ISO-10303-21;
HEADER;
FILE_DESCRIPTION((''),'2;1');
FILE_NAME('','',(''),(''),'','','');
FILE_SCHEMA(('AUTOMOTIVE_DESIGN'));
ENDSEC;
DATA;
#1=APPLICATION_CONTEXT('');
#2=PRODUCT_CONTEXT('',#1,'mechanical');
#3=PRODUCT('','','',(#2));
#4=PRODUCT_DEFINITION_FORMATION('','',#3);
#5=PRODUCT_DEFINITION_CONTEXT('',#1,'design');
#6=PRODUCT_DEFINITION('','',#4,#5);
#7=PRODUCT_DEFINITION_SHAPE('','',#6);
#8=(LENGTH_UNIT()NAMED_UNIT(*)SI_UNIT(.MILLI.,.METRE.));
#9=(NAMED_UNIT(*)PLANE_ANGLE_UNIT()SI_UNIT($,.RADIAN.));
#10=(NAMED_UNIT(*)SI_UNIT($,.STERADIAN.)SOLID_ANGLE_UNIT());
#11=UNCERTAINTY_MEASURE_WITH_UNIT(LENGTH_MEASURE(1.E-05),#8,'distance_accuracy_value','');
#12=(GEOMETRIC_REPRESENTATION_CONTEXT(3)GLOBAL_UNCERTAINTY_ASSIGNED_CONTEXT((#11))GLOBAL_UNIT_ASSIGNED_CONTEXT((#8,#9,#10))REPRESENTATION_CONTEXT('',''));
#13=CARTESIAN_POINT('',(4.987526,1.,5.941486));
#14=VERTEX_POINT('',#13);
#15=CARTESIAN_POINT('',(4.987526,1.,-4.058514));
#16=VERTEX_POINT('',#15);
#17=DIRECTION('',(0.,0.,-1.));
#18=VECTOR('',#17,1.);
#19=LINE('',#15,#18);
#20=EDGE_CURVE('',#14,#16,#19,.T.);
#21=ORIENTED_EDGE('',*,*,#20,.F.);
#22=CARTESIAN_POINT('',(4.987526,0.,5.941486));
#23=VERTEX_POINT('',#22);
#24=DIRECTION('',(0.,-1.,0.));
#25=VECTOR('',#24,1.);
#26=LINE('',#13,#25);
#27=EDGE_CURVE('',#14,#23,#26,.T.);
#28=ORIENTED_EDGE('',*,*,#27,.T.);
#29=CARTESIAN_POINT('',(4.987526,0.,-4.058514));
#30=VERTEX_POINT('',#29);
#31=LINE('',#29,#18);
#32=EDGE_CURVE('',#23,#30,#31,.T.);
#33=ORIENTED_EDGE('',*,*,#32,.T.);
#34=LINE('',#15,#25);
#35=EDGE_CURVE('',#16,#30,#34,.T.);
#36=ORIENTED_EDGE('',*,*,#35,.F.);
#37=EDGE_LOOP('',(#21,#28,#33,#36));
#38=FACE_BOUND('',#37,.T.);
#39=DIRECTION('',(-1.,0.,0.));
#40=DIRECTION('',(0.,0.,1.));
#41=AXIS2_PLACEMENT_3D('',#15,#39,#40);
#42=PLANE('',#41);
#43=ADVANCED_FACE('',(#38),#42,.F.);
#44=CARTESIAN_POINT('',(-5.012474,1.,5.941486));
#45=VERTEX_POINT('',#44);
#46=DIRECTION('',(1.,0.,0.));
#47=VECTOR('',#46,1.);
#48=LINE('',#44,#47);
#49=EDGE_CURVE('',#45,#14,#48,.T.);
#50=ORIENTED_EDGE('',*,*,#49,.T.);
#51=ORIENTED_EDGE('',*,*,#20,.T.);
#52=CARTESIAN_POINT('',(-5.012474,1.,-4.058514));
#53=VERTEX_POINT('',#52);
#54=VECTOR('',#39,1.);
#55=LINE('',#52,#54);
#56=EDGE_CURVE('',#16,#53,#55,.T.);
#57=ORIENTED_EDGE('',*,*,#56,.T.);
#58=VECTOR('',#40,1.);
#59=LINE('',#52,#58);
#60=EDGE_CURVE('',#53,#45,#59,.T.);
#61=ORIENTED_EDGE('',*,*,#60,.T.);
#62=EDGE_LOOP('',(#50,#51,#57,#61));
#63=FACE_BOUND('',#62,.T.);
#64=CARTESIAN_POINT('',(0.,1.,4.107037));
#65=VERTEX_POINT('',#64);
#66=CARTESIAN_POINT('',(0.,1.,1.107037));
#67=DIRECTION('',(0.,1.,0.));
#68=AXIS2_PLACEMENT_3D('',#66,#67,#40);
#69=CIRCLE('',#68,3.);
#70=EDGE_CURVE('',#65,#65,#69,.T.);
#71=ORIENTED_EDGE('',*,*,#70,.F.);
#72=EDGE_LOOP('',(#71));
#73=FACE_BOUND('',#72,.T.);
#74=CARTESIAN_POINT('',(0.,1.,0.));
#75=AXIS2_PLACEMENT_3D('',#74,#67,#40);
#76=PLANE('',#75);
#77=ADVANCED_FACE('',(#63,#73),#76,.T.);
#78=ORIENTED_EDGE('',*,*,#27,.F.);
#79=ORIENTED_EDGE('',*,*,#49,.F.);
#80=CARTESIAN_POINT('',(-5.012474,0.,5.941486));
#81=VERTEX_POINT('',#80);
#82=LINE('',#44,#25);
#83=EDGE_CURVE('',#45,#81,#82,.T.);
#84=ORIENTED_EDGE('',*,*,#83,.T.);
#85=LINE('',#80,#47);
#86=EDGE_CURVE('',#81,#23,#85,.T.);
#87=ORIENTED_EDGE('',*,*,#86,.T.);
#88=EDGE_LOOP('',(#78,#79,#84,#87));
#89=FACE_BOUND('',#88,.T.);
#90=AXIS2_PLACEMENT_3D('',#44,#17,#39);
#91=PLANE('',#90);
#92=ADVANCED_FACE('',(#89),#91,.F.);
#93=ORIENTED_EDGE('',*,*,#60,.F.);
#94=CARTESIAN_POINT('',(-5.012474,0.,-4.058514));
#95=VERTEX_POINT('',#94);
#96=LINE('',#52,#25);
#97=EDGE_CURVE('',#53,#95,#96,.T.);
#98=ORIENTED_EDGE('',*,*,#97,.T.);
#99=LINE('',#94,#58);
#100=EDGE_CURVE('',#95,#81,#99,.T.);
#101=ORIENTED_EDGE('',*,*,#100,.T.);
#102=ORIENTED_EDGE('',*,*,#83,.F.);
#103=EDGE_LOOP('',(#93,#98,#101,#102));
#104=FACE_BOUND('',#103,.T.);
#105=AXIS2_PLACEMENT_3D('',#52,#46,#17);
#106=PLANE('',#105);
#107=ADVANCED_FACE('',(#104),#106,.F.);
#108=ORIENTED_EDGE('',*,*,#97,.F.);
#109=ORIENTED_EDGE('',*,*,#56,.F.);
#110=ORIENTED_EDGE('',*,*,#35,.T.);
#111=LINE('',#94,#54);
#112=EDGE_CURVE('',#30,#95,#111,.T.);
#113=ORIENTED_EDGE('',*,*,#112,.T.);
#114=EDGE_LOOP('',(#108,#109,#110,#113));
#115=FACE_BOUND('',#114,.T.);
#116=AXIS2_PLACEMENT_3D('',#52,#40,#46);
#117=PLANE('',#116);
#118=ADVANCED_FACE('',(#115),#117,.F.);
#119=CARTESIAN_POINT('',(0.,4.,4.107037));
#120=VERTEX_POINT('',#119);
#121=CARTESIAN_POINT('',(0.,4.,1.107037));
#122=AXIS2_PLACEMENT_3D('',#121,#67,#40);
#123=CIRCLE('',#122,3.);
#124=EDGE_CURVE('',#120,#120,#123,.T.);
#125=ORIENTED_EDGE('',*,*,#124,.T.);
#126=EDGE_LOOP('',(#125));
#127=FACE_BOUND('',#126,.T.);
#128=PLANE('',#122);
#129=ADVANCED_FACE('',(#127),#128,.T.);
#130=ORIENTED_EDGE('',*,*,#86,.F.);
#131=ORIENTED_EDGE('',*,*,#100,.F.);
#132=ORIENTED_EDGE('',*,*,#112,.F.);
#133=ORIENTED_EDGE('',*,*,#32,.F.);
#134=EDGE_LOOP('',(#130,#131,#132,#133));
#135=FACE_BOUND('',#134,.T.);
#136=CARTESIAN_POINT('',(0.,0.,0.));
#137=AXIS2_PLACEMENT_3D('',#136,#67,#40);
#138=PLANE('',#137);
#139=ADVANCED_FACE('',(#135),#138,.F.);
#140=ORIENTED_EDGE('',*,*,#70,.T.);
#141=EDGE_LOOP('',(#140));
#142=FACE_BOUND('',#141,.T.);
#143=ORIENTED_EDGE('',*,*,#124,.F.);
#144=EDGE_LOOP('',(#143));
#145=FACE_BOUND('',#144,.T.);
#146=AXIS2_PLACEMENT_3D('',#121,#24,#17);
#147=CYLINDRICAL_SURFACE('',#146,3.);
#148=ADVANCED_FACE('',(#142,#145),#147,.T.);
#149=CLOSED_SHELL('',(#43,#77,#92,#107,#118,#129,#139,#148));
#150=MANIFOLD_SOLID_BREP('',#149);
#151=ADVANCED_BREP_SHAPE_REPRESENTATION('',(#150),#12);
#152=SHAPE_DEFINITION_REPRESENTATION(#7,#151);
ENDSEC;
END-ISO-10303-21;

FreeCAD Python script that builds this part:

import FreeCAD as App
import Part
import Sketcher

V = App.Vector
Q = App.Units.Quantity


def add_polygon(sketch, points):
    """Adds a closed chain of lines whose ends are joined by coincident constraints."""
    first, n = sketch.GeometryCount, len(points)
    for a, b in zip(points, points[1:] + points[:1]):
        sketch.addGeometry(Part.LineSegment(App.Vector(*a, 0), App.Vector(*b, 0)), False)
    for i in range(n):
        sketch.addConstraint(Sketcher.Constraint("Coincident", first + i, 2, first + (i + 1) % n, 1))

doc = App.newDocument("Part")
body = doc.addObject("PartDesign::Body", "Body")

sketch1 = doc.addObject("Sketcher::SketchObject", "Sketch")
body.addObject(sketch1)
sketch1.AttachmentSupport = (doc.XZ_Plane, [""])
sketch1.MapMode = "FlatFace"
add_polygon(sketch1, [(-5, -4), (-5, 6), (5, 6), (5, -4)])
sketch1.addConstraint([
    Sketcher.Constraint("Vertical", 0),
    Sketcher.Constraint("Horizontal", 1),
    Sketcher.Constraint("Vertical", 2),
    Sketcher.Constraint("Horizontal", 3),
    Sketcher.Constraint("Equal", 3, 0),
    Sketcher.Constraint("DistanceX", 1, 1, 1, 2, Q("10 mm")),
    Sketcher.Constraint("DistanceX", 0, 2, -1, 1, Q("5.012474 mm")),
    Sketcher.Constraint("DistanceY", -1, 1, 0, 2, Q("5.941486 mm")),
])
pad1 = doc.addObject("PartDesign::Pad", "Pad")
body.addObject(pad1)
pad1.Profile = sketch1
pad1.Length = 1
pad1.Reversed = True

sketch2 = doc.addObject("Sketcher::SketchObject", "Sketch001")
body.addObject(sketch2)
sketch2.AttachmentSupport = (doc.XZ_Plane, [""])
sketch2.MapMode = "FlatFace"
sketch2.AttachmentOffset = App.Placement(V(0, 0, -1), App.Rotation())
sketch2.addGeometry(Part.Circle(V(0, 1.1, 0), V(0, 0, 1), 3), False)
sketch2.addConstraint([
    Sketcher.Constraint("PointOnObject", 0, 3, -2),
    Sketcher.Constraint("Diameter", 0, Q("6 mm")),
    Sketcher.Constraint("DistanceY", -1, 1, 0, 3, Q("1.107037 mm")),
])
pad2 = doc.addObject("PartDesign::Pad", "Pad001")
body.addObject(pad2)
pad2.Profile = sketch2
pad2.Length = 3
pad2.Reversed = True

doc.recompute()
